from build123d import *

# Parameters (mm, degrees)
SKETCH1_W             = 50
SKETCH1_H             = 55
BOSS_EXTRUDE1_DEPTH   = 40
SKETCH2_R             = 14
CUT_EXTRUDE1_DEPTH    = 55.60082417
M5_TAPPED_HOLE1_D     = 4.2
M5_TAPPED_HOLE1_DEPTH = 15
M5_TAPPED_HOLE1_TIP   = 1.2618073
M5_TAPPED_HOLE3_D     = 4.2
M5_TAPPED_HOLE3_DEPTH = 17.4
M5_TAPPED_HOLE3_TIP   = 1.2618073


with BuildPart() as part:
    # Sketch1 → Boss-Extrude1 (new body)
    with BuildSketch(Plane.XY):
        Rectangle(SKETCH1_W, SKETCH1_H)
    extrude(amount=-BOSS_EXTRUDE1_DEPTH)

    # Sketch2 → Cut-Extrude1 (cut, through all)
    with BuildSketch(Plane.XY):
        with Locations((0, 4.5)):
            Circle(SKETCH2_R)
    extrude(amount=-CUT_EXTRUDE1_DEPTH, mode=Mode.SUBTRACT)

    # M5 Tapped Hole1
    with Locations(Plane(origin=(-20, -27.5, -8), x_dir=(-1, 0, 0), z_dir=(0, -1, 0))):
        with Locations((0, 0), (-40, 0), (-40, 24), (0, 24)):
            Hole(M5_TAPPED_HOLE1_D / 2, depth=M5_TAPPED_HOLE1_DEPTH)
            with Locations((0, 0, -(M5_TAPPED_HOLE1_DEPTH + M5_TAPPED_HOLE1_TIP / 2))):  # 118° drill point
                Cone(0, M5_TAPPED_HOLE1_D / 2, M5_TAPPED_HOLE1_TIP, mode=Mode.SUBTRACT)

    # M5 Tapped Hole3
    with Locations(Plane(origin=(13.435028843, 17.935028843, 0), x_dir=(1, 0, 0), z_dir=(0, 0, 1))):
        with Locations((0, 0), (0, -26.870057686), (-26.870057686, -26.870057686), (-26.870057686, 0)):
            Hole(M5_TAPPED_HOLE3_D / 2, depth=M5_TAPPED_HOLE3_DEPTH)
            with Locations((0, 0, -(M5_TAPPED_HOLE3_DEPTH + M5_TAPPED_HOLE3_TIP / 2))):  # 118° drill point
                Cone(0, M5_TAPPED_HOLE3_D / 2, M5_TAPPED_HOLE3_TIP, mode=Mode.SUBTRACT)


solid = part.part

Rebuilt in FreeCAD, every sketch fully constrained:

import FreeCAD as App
import Part
import Sketcher

V = App.Vector


def add_polygon(sketch, points):
    """Adds a closed chain of lines whose ends are joined by coincident constraints."""
    first, n = sketch.GeometryCount, len(points)
    for a, b in zip(points, points[1:] + points[:1]):
        sketch.addGeometry(Part.LineSegment(App.Vector(*a, 0), App.Vector(*b, 0)), False)
    for i in range(n):
        sketch.addConstraint(Sketcher.Constraint("Coincident", first + i, 2, first + (i + 1) % n, 1))

doc = App.newDocument("Part")
body = doc.addObject("PartDesign::Body", "Body")

# Sketch on XY plane
sketch1 = body.newObject("Sketcher::SketchObject", "Sketch")
sketch1.AttachmentSupport = (doc.getObject("XY_Plane"), [""])
sketch1.MapMode = "FlatFace"
add_polygon(sketch1, [(-25, 27.5), (-25, -27.5), (25, -27.5), (25, 27.5)])  # lines 0-3
sketch1.addConstraint([
    Sketcher.Constraint("Vertical", 0),
    Sketcher.Constraint("Horizontal", 1),
    Sketcher.Constraint("Vertical", 2),
    Sketcher.Constraint("Horizontal", 3),
    Sketcher.Constraint("Symmetric", 0, 2, 2, 2, -1, 1),
    Sketcher.Constraint("DistanceX", 1, 1, 1, 2, 50.0),
    Sketcher.Constraint("DistanceY", 0, 2, 0, 1, 55.0),
])
pad1 = body.newObject("PartDesign::Pad", "Pad")
pad1.Profile = sketch1
pad1.Length = 40
pad1.Reversed = True

# Sketch on XY plane
sketch2 = body.newObject("Sketcher::SketchObject", "Sketch001")
sketch2.AttachmentSupport = (doc.getObject("XY_Plane"), [""])
sketch2.MapMode = "FlatFace"
sketch2.addGeometry(Part.Circle(V(0, 4.5, 0), V(0, 0, 1), 14), False)
sketch2.addConstraint([
    Sketcher.Constraint("PointOnObject", 0, 3, -2),
    Sketcher.Constraint("Diameter", 0, 28.0),
    Sketcher.Constraint("DistanceY", -1, 1, 0, 3, 4.5),
])
pocket1 = body.newObject("PartDesign::Pocket", "Pocket")
pocket1.Profile = sketch2
pocket1.Type = "ThroughAll"

# Sketch on XZ plane
sketch3 = body.newObject("Sketcher::SketchObject", "Sketch002")
sketch3.AttachmentSupport = (doc.getObject("XZ_Plane"), [""])
sketch3.MapMode = "FlatFace"
sketch3.AttachmentOffset = App.Placement(V(0, 0, 27.5), App.Rotation())
sketch3.addGeometry([
    Part.Circle(V(-20, -8, 0), V(0, 0, 1), 2.1),
    Part.Circle(V(20, -8, 0), V(0, 0, 1), 2.1),
    Part.Circle(V(20, -32, 0), V(0, 0, 1), 2.1),
    Part.Circle(V(-20, -32, 0), V(0, 0, 1), 2.1),
], False)
sketch3.addConstraint([
    Sketcher.Constraint("Equal", 0, 1),
    Sketcher.Constraint("Equal", 1, 2),
    Sketcher.Constraint("Equal", 2, 3),
    Sketcher.Constraint("Symmetric", 0, 3, 1, 3, -2),
    Sketcher.Constraint("Symmetric", 2, 3, 3, 3, -2),
    Sketcher.Constraint("Vertical", 1, 3, 2, 3),
    Sketcher.Constraint("Diameter", 0, 4.2),
    Sketcher.Constraint("DistanceX", 0, 3, -1, 1, 20.0),
    Sketcher.Constraint("DistanceY", 0, 3, -1, 1, 8.0),
    Sketcher.Constraint("DistanceY", 2, 3, -1, 1, 32.0),
])
doc.recompute()
hole = body.newObject("PartDesign::Hole", "Hole")
hole.Profile = sketch3
hole.ThreadType = "None"
hole.Diameter = 4.2
hole.DepthType = "Dimension"
hole.Depth = 15
hole.DrillPoint = "Angled"
hole.DrillPointAngle = 118

# Sketch on XY plane
sketch4 = body.newObject("Sketcher::SketchObject", "Sketch003")
sketch4.AttachmentSupport = (doc.getObject("XY_Plane"), [""])
sketch4.MapMode = "FlatFace"
sketch4.addGeometry([
    Part.Circle(V(13.435029, 17.935029, 0), V(0, 0, 1), 2.1),
    Part.Circle(V(13.435029, -8.935029, 0), V(0, 0, 1), 2.1),
    Part.Circle(V(-13.435029, -8.935029, 0), V(0, 0, 1), 2.1),
    Part.Circle(V(-13.435029, 17.935029, 0), V(0, 0, 1), 2.1),
], False)
sketch4.addConstraint([
    Sketcher.Constraint("Equal", 0, 1),
    Sketcher.Constraint("Equal", 1, 2),
    Sketcher.Constraint("Equal", 2, 3),
    Sketcher.Constraint("Symmetric", 1, 3, 2, 3, -2),
    Sketcher.Constraint("Symmetric", 0, 3, 3, 3, -2),
    Sketcher.Constraint("Vertical", 0, 3, 1, 3),
    Sketcher.Constraint("Diameter", 0, 4.2),
    Sketcher.Constraint("DistanceX", -1, 1, 0, 3, 13.435029),
    Sketcher.Constraint("DistanceY", -1, 1, 0, 3, 17.935029),
    Sketcher.Constraint("DistanceY", 1, 3, -1, 1, 8.935029),
])
doc.recompute()
hole2 = body.newObject("PartDesign::Hole", "Hole001")
hole2.Profile = sketch4
hole2.ThreadType = "None"
hole2.Diameter = 4.2
hole2.DepthType = "Dimension"
hole2.Depth = 17.4
hole2.DrillPoint = "Angled"
hole2.DrillPointAngle = 118

doc.recompute()
